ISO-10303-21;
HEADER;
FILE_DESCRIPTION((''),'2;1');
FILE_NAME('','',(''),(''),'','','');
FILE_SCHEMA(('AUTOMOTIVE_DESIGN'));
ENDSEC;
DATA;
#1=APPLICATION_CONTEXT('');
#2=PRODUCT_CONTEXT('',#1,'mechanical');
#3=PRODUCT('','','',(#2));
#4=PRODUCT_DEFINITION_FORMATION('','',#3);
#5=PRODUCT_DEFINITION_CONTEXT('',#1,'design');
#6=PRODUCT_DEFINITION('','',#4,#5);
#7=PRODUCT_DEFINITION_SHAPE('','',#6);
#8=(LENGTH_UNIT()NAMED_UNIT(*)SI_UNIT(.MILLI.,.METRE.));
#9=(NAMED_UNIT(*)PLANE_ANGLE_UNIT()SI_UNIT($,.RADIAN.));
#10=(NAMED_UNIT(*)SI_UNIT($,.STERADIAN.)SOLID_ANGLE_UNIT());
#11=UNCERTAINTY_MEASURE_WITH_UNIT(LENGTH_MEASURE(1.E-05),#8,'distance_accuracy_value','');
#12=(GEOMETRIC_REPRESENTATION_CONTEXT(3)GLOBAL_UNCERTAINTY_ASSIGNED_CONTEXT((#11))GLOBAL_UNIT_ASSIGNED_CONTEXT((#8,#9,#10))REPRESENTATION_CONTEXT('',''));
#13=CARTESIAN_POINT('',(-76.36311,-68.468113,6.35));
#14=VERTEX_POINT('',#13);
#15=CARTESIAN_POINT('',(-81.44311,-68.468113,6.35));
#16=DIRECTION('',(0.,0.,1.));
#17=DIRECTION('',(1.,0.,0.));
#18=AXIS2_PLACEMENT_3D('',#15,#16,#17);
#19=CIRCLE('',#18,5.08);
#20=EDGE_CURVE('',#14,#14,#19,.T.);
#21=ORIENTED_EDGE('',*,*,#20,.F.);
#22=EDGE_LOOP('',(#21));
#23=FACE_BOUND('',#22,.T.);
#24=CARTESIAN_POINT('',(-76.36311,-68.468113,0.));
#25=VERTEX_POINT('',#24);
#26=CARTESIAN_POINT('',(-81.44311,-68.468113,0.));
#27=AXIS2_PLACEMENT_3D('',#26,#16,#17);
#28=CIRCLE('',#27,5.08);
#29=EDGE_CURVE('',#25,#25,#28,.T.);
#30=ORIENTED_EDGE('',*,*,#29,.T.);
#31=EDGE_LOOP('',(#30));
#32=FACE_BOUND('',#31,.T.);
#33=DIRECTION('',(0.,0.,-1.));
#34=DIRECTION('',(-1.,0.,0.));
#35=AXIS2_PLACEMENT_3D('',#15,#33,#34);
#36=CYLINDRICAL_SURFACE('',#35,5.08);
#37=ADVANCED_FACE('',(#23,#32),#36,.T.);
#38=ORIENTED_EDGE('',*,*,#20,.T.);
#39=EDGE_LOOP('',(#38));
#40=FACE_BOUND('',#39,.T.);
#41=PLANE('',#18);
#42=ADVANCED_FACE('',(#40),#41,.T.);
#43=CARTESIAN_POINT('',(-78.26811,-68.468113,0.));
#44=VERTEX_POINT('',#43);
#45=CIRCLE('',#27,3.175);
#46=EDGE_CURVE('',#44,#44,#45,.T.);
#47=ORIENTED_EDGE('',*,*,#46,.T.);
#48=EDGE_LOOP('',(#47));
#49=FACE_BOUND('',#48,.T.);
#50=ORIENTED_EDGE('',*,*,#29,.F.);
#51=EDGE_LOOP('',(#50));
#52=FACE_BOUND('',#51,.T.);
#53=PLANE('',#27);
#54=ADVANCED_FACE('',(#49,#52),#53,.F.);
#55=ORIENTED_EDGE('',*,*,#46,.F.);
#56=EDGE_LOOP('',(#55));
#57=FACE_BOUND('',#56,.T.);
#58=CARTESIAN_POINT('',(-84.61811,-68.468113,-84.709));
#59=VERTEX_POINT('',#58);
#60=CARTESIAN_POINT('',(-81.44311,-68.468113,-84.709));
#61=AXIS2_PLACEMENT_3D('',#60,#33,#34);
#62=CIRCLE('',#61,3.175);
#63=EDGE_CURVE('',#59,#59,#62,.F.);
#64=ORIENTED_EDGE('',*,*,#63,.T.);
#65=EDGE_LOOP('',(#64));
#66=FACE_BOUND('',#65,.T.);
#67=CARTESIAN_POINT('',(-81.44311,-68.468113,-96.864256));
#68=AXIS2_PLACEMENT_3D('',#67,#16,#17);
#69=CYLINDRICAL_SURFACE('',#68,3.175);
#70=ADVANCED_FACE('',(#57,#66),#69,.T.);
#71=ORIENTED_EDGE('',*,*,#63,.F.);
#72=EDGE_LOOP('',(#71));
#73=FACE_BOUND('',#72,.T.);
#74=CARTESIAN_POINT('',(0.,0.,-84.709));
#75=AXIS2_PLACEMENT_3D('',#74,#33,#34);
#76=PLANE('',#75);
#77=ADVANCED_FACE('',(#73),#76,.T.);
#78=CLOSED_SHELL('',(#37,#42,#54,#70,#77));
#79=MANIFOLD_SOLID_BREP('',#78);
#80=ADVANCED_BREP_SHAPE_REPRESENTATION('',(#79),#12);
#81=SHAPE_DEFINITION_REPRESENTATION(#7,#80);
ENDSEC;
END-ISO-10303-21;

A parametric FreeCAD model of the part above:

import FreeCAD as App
import Part
import Sketcher
Q = App.Units.Quantity

doc = App.newDocument("Part")
body = doc.addObject("PartDesign::Body", "Body")

sketch1 = body.newObject("Sketcher::SketchObject", "Sketch")
sketch1.AttachmentSupport = (doc.getObject("XY_Plane"), [""])
sketch1.MapMode = "FlatFace"
sketch1.addGeometry(Part.Circle(App.Vector(-81.44311, -68.468113, 0), App.Vector(0, 0, 1), 3.175), False)
sketch1.addConstraint([
    Sketcher.Constraint("Diameter", 0, Q("0.25 in")),
    Sketcher.Constraint("DistanceX", 0, 3, -1, 1, 81.44311),
    Sketcher.Constraint("DistanceY", 0, 3, -1, 1, 68.468113),
])
pad1 = body.newObject("PartDesign::Pad", "Pad")
pad1.Profile = sketch1
pad1.Length = Q("3.335 in")
pad1.Reversed = True

sketch2 = body.newObject("Sketcher::SketchObject", "Sketch001")
sketch2.AttachmentSupport = (doc.getObject("XY_Plane"), [""])
sketch2.MapMode = "FlatFace"
sketch2.addGeometry(Part.Circle(App.Vector(-81.44311, -68.468113, 0), App.Vector(0, 0, 1), 5.08), False)
sketch2.addConstraint([
    Sketcher.Constraint("Diameter", 0, Q("0.4 in")),
    Sketcher.Constraint("DistanceX", 0, 3, -1, 1, 81.44311),
    Sketcher.Constraint("DistanceY", 0, 3, -1, 1, 68.468113),
])
pad2 = body.newObject("PartDesign::Pad", "Pad001")
pad2.Profile = sketch2
pad2.Length = Q("0.25 in")

doc.recompute()
